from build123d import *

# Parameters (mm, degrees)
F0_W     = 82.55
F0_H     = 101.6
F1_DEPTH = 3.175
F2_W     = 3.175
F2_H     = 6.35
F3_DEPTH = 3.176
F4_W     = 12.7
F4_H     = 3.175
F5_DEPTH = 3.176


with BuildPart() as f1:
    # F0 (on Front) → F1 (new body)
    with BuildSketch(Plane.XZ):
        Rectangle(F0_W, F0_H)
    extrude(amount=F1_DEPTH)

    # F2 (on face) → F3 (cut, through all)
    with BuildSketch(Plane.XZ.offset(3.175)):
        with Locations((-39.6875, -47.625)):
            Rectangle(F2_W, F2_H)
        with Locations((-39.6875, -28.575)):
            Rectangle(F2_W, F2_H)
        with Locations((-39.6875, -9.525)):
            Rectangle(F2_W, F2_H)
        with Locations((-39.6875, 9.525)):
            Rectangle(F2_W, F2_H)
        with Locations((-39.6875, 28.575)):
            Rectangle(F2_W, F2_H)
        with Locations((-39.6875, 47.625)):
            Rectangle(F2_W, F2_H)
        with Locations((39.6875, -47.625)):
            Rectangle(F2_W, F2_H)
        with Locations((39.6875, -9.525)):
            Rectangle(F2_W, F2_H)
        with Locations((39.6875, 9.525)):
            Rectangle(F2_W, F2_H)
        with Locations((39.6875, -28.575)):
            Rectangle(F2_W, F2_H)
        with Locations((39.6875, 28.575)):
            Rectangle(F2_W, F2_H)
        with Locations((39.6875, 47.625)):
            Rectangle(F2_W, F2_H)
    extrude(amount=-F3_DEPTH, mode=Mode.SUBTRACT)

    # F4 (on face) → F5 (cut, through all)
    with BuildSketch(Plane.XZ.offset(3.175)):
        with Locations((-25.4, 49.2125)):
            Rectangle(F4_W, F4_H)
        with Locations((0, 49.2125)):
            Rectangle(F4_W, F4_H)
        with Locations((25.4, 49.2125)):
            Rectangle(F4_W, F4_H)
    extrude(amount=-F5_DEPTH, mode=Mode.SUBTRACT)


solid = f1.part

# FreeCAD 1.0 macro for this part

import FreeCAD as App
import Part
import Sketcher

V = App.Vector
Q = App.Units.Quantity


def add_polygon(sketch, points):
    """Adds a closed chain of lines whose ends are joined by coincident constraints."""
    first, n = sketch.GeometryCount, len(points)
    for a, b in zip(points, points[1:] + points[:1]):
        sketch.addGeometry(Part.LineSegment(App.Vector(*a, 0), App.Vector(*b, 0)), False)
    for i in range(n):
        sketch.addConstraint(Sketcher.Constraint("Coincident", first + i, 2, first + (i + 1) % n, 1))

doc = App.newDocument("Part")
body = doc.addObject("PartDesign::Body", "Body")

# Sketch on XZ plane
sketch1 = doc.addObject("Sketcher::SketchObject", "Sketch")
body.addObject(sketch1)
sketch1.AttachmentSupport = (doc.XZ_Plane, [""])
sketch1.MapMode = "FlatFace"
add_polygon(sketch1, [(-41, 51), (-41, -51), (41, -51), (41, 51)])  # lines 0-3
sketch1.addConstraint([
    Sketcher.Constraint("Vertical", 0),
    Sketcher.Constraint("Horizontal", 1),
    Sketcher.Constraint("Vertical", 2),
    Sketcher.Constraint("Horizontal", 3),
    Sketcher.Constraint("Symmetric", 0, 2, 2, 2, -1, 1),
    Sketcher.Constraint("DistanceY", 0, 2, 0, 1, Q("4 in")),
    Sketcher.Constraint("DistanceX", 1, 1, 1, 2, Q("3.25 in")),
])
pad1 = doc.addObject("PartDesign::Pad", "Pad")
body.addObject(pad1)
pad1.Profile = sketch1
pad1.Length = Q("0.125 in")

# Sketch on XZ plane
sketch2 = doc.addObject("Sketcher::SketchObject", "Sketch001")
body.addObject(sketch2)
sketch2.AttachmentSupport = (doc.XZ_Plane, [""])
sketch2.MapMode = "FlatFace"
sketch2.AttachmentOffset = App.Placement(V(0, 0, 0.125 * 25.4), App.Rotation())
add_polygon(sketch2, [(-41.3, -44.5), (-41.3, -50.8), (-38.1, -50.8), (-38.1, -44.5)])  # lines 0-3
add_polygon(sketch2, [(-41.3, -25.4), (-41.3, -31.8), (-38.1, -31.8), (-38.1, -25.4)])  # lines 4-7
add_polygon(sketch2, [(-41.3, -6.3), (-41.3, -12.7), (-38.1, -12.7), (-38.1, -6.3)])  # lines 8-11
add_polygon(sketch2, [(-41.3, 12.7), (-41.3, 6.3), (-38.1, 6.3), (-38.1, 12.7)])  # lines 12-15
add_polygon(sketch2, [(-41.3, 31.8), (-41.3, 25.4), (-38.1, 25.4), (-38.1, 31.8)])  # lines 16-19
add_polygon(sketch2, [(-41.3, 50.8), (-41.3, 44.5), (-38.1, 44.5), (-38.1, 50.8)])  # lines 20-23
add_polygon(sketch2, [(38.1, -44.5), (38.1, -50.8), (41.3, -50.8), (41.3, -44.5)])  # lines 24-27
add_polygon(sketch2, [(38.1, -6.3), (38.1, -12.7), (41.3, -12.7), (41.3, -6.3)])  # lines 28-31
add_polygon(sketch2, [(38.1, 12.7), (38.1, 6.3), (41.3, 6.3), (41.3, 12.7)])  # lines 32-35
add_polygon(sketch2, [(38.1, -25.4), (38.1, -31.8), (41.3, -31.8), (41.3, -25.4)])  # lines 36-39
add_polygon(sketch2, [(38.1, 31.8), (38.1, 25.4), (41.3, 25.4), (41.3, 31.8)])  # lines 40-43
add_polygon(sketch2, [(38.1, 50.8), (38.1, 44.5), (41.3, 44.5), (41.3, 50.8)])  # lines 44-47
sketch2.addConstraint([
    Sketcher.Constraint("Vertical", 0),
    Sketcher.Constraint("Horizontal", 1),
    Sketcher.Constraint("Vertical", 2),
    Sketcher.Constraint("Horizontal", 3),
    Sketcher.Constraint("Vertical", 4),
    Sketcher.Constraint("Horizontal", 5),
    Sketcher.Constraint("Vertical", 6),
    Sketcher.Constraint("Horizontal", 7),
    Sketcher.Constraint("Vertical", 8),
    Sketcher.Constraint("Horizontal", 9),
    Sketcher.Constraint("Vertical", 10),
    Sketcher.Constraint("Horizontal", 11),
    Sketcher.Constraint("Vertical", 12),
    Sketcher.Constraint("Horizontal", 13),
    Sketcher.Constraint("Vertical", 14),
    Sketcher.Constraint("Horizontal", 15),
    Sketcher.Constraint("Vertical", 16),
    Sketcher.Constraint("Horizontal", 17),
    Sketcher.Constraint("Vertical", 18),
    Sketcher.Constraint("Horizontal", 19),
    Sketcher.Constraint("Vertical", 20),
    Sketcher.Constraint("Horizontal", 21),
    Sketcher.Constraint("Vertical", 22),
    Sketcher.Constraint("Horizontal", 23),
    Sketcher.Constraint("Vertical", 24),
    Sketcher.Constraint("Horizontal", 25),
    Sketcher.Constraint("Vertical", 26),
    Sketcher.Constraint("Horizontal", 27),
    Sketcher.Constraint("Vertical", 28),
    Sketcher.Constraint("Horizontal", 29),
    Sketcher.Constraint("Vertical", 30),
    Sketcher.Constraint("Horizontal", 31),
    Sketcher.Constraint("Vertical", 32),
    Sketcher.Constraint("Horizontal", 33),
    Sketcher.Constraint("Vertical", 34),
    Sketcher.Constraint("Horizontal", 35),
    Sketcher.Constraint("Vertical", 36),
    Sketcher.Constraint("Horizontal", 37),
    Sketcher.Constraint("Vertical", 38),
    Sketcher.Constraint("Horizontal", 39),
    Sketcher.Constraint("Vertical", 40),
    Sketcher.Constraint("Horizontal", 41),
    Sketcher.Constraint("Vertical", 42),
    Sketcher.Constraint("Horizontal", 43),
    Sketcher.Constraint("Vertical", 44),
    Sketcher.Constraint("Horizontal", 45),
    Sketcher.Constraint("Vertical", 46),
    Sketcher.Constraint("Horizontal", 47),
    Sketcher.Constraint("Symmetric", 22, 2, 24, 2, -1, 1),
    Sketcher.Constraint("Symmetric", 20, 2, 26, 2, -1, 1),
    Sketcher.Constraint("Symmetric", 14, 2, 28, 2, -1, 1),
    Sketcher.Constraint("Symmetric", 12, 2, 30, 2, -1, 1),
    Sketcher.Constraint("Symmetric", 10, 2, 32, 2, -1, 1),
    Sketcher.Constraint("Symmetric", 8, 2, 34, 2, -1, 1),
    Sketcher.Constraint("Symmetric", 18, 2, 36, 2, -1, 1),
    Sketcher.Constraint("Symmetric", 16, 2, 38, 2, -1, 1),
    Sketcher.Constraint("Symmetric", 6, 2, 40, 2, -1, 1),
    Sketcher.Constraint("Symmetric", 4, 2, 42, 2, -1, 1),
    Sketcher.Constraint("Symmetric", 2, 2, 44, 2, -1, 1),
    Sketcher.Constraint("Symmetric", 0, 2, 46, 2, -1, 1),
    Sketcher.Constraint("Symmetric", 1, 2, 24, 2, -2),
    Sketcher.Constraint("Symmetric", 3, 2, 26, 2, -2),
    Sketcher.Constraint("Symmetric", 9, 2, 28, 2, -2),
    Sketcher.Constraint("Symmetric", 11, 2, 30, 2, -2),
    Sketcher.Constraint("Symmetric", 5, 2, 36, 2, -2),
    Sketcher.Constraint("Symmetric", 7, 2, 38, 2, -2),
    Sketcher.Constraint("Vertical", 3, 2, 4, 2),
    Sketcher.Constraint("Vertical", 2, 2, 5, 2),
    Sketcher.Constraint("Vertical", 7, 2, 8, 2),
    Sketcher.Constraint("Vertical", 6, 2, 9, 2),
    Sketcher.Constraint("Equal", 2, 4),
    Sketcher.Constraint("Equal", 6, 8),
    Sketcher.Constraint("DistanceY", 0, 2, -1, 1, Q("2 in")),
    Sketcher.Constraint("DistanceY", 6, 2, -1, 1, Q("1 in")),
    Sketcher.Constraint("DistanceY", 5, 2, 10, 2, Q("1 in")),
    Sketcher.Constraint("DistanceY", 9, 2, 14, 2, Q("1 in")),
    Sketcher.Constraint("DistanceX", 1, 2, 24, 2, Q("3 in")),
    Sketcher.Constraint("DistanceX", 1, 1, 1, 2, Q("0.125 in")),
])
pocket1 = doc.addObject("PartDesign::Pocket", "Pocket")
body.addObject(pocket1)
pocket1.Profile = sketch2
pocket1.Type = "ThroughAll"

# Sketch on XZ plane
sketch3 = doc.addObject("Sketcher::SketchObject", "Sketch002")
body.addObject(sketch3)
sketch3.AttachmentSupport = (doc.XZ_Plane, [""])
sketch3.MapMode = "FlatFace"
sketch3.AttachmentOffset = App.Placement(V(0, 0, 0.125 * 25.4), App.Rotation())
add_polygon(sketch3, [(-31.8, 50.8), (-31.8, 47.6), (-19.1, 47.6), (-19.1, 50.8)])  # lines 0-3
add_polygon(sketch3, [(-6.3, 50.8), (-6.3, 47.6), (6.3, 47.6), (6.3, 50.8)])  # lines 4-7
add_polygon(sketch3, [(19.1, 50.8), (19.1, 47.6), (31.8, 47.6), (31.8, 50.8)])  # lines 8-11
sketch3.addConstraint([
    Sketcher.Constraint("Vertical", 0),
    Sketcher.Constraint("Horizontal", 1),
    Sketcher.Constraint("Vertical", 2),
    Sketcher.Constraint("Horizontal", 3),
    Sketcher.Constraint("Vertical", 4),
    Sketcher.Constraint("Horizontal", 5),
    Sketcher.Constraint("Vertical", 6),
    Sketcher.Constraint("Horizontal", 7),
    Sketcher.Constraint("Vertical", 8),
    Sketcher.Constraint("Horizontal", 9),
    Sketcher.Constraint("Vertical", 10),
    Sketcher.Constraint("Horizontal", 11),
    Sketcher.Constraint("Symmetric", 1, 2, 8, 2, -2),
    Sketcher.Constraint("Symmetric", 3, 2, 10, 2, -2),
    Sketcher.Constraint("Horizontal", 1, 2, 4, 2),
    Sketcher.Constraint("Horizontal", 3, 2, 6, 2),
    Sketcher.Constraint("Equal", 3, 5),
    Sketcher.Constraint("DistanceX", 1, 1, 1, 2, Q("0.5 in")),
    Sketcher.Constraint("DistanceY", -1, 1, 2, 2, Q("2 in")),
    Sketcher.Constraint("DistanceX", 0, 2, 4, 2, Q("1 in")),
    Sketcher.Constraint("DistanceX", 4, 2, 8, 2, Q("1 in")),
    Sketcher.Constraint("DistanceY", 0, 2, 0, 1, Q("0.125 in")),
])
pocket2 = doc.addObject("PartDesign::Pocket", "Pocket001")
body.addObject(pocket2)
pocket2.Profile = sketch3
pocket2.Type = "ThroughAll"

doc.recompute()
